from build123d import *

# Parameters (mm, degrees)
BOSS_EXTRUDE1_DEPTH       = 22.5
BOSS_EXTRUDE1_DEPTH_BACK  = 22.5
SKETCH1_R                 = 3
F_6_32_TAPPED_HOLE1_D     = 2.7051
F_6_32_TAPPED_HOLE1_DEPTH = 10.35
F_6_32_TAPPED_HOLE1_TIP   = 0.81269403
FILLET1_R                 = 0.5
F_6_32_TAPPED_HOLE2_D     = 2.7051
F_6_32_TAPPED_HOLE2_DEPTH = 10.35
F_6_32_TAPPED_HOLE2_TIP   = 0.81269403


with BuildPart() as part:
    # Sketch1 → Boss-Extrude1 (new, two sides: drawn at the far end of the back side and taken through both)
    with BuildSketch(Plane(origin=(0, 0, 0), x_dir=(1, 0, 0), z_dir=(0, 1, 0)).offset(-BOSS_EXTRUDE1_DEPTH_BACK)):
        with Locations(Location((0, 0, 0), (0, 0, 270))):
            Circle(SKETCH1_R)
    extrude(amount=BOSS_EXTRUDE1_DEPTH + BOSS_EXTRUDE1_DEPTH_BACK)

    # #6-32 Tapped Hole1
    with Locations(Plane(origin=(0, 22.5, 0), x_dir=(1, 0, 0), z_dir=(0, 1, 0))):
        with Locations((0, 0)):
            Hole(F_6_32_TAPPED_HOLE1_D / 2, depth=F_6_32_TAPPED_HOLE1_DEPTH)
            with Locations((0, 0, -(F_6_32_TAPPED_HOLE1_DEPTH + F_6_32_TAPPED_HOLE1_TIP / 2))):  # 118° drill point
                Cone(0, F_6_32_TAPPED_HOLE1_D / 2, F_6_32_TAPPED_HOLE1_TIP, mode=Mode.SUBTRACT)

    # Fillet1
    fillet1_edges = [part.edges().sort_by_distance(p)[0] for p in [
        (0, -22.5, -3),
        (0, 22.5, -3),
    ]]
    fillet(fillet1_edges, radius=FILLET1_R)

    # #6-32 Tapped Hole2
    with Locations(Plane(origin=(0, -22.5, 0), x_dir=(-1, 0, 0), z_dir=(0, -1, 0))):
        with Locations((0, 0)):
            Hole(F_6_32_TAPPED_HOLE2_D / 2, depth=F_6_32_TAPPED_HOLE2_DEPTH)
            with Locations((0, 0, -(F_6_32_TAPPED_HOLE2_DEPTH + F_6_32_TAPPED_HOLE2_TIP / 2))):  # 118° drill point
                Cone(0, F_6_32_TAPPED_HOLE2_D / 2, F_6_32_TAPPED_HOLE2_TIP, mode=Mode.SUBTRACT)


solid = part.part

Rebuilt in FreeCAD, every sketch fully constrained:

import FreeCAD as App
import Part
import Sketcher

V = App.Vector


def edges_at(feature, points):
    """Names of the edges that pass closest to the given points."""
    edges = feature.Shape.Edges
    near = lambda p: min(range(len(edges)), key=lambda i: edges[i].distToShape(Part.Vertex(*p))[0])
    return sorted({f"Edge{near(p) + 1}" for p in points})

doc = App.newDocument("Part")
body = doc.addObject("PartDesign::Body", "Body")

sketch1 = body.newObject("Sketcher::SketchObject", "Sketch")
sketch1.AttachmentSupport = (doc.getObject("XZ_Plane"), [""])
sketch1.MapMode = "FlatFace"
sketch1.addGeometry(Part.Circle(V(0, 0, 0), V(0, 0, 1), 3), False)
sketch1.addConstraint([
    Sketcher.Constraint("Coincident", 0, 3, -1, 1),
    Sketcher.Constraint("Diameter", 0, 6.0),
])
pad1 = body.newObject("PartDesign::Pad", "Pad")
pad1.Profile = sketch1
pad1.Type = "TwoLengths"
pad1.Length = 22.5
pad1.Length2 = 22.5
pad1.Reversed = True

sketch2 = body.newObject("Sketcher::SketchObject", "Sketch001")
sketch2.AttachmentSupport = (doc.getObject("XZ_Plane"), [""])
sketch2.MapMode = "FlatFace"
sketch2.AttachmentOffset = App.Placement(V(0, 0, -22.5), App.Rotation())
sketch2.addGeometry(Part.Circle(V(0, 0, 0), V(0, 0, 1), 1.4), False)
sketch2.addConstraint([
    Sketcher.Constraint("Coincident", 0, 3, -1, 1),
    Sketcher.Constraint("Diameter", 0, 2.7051),
])
doc.recompute()
hole = body.newObject("PartDesign::Hole", "Hole")
hole.Profile = sketch2
hole.ThreadType = "None"
hole.Diameter = 2.7051
hole.DepthType = "Dimension"
hole.Depth = 10.35
hole.DrillPoint = "Angled"
hole.DrillPointAngle = 118
hole.Reversed = True
doc.recompute()

fillet = body.newObject("PartDesign::Fillet", "Fillet")
fillet.Base = (hole, edges_at(hole, [(0, -22.5, -3), (0, 22.5, -3)]))
fillet.Radius = 0.5

sketch3 = body.newObject("Sketcher::SketchObject", "Sketch002")
sketch3.AttachmentSupport = (doc.getObject("XZ_Plane"), [""])
sketch3.MapMode = "FlatFace"
sketch3.AttachmentOffset = App.Placement(V(0, 0, 22.5), App.Rotation())
sketch3.addGeometry(Part.Circle(V(0, 0, 0), V(0, 0, 1), 1.4), False)
sketch3.addConstraint([
    Sketcher.Constraint("Coincident", 0, 3, -1, 1),
    Sketcher.Constraint("Diameter", 0, 2.7051),
])
doc.recompute()
hole2 = body.newObject("PartDesign::Hole", "Hole001")
hole2.Profile = sketch3
hole2.ThreadType = "None"
hole2.Diameter = 2.7051
hole2.DepthType = "Dimension"
hole2.Depth = 10.35
hole2.DrillPoint = "Angled"
hole2.DrillPointAngle = 118

doc.recompute()
